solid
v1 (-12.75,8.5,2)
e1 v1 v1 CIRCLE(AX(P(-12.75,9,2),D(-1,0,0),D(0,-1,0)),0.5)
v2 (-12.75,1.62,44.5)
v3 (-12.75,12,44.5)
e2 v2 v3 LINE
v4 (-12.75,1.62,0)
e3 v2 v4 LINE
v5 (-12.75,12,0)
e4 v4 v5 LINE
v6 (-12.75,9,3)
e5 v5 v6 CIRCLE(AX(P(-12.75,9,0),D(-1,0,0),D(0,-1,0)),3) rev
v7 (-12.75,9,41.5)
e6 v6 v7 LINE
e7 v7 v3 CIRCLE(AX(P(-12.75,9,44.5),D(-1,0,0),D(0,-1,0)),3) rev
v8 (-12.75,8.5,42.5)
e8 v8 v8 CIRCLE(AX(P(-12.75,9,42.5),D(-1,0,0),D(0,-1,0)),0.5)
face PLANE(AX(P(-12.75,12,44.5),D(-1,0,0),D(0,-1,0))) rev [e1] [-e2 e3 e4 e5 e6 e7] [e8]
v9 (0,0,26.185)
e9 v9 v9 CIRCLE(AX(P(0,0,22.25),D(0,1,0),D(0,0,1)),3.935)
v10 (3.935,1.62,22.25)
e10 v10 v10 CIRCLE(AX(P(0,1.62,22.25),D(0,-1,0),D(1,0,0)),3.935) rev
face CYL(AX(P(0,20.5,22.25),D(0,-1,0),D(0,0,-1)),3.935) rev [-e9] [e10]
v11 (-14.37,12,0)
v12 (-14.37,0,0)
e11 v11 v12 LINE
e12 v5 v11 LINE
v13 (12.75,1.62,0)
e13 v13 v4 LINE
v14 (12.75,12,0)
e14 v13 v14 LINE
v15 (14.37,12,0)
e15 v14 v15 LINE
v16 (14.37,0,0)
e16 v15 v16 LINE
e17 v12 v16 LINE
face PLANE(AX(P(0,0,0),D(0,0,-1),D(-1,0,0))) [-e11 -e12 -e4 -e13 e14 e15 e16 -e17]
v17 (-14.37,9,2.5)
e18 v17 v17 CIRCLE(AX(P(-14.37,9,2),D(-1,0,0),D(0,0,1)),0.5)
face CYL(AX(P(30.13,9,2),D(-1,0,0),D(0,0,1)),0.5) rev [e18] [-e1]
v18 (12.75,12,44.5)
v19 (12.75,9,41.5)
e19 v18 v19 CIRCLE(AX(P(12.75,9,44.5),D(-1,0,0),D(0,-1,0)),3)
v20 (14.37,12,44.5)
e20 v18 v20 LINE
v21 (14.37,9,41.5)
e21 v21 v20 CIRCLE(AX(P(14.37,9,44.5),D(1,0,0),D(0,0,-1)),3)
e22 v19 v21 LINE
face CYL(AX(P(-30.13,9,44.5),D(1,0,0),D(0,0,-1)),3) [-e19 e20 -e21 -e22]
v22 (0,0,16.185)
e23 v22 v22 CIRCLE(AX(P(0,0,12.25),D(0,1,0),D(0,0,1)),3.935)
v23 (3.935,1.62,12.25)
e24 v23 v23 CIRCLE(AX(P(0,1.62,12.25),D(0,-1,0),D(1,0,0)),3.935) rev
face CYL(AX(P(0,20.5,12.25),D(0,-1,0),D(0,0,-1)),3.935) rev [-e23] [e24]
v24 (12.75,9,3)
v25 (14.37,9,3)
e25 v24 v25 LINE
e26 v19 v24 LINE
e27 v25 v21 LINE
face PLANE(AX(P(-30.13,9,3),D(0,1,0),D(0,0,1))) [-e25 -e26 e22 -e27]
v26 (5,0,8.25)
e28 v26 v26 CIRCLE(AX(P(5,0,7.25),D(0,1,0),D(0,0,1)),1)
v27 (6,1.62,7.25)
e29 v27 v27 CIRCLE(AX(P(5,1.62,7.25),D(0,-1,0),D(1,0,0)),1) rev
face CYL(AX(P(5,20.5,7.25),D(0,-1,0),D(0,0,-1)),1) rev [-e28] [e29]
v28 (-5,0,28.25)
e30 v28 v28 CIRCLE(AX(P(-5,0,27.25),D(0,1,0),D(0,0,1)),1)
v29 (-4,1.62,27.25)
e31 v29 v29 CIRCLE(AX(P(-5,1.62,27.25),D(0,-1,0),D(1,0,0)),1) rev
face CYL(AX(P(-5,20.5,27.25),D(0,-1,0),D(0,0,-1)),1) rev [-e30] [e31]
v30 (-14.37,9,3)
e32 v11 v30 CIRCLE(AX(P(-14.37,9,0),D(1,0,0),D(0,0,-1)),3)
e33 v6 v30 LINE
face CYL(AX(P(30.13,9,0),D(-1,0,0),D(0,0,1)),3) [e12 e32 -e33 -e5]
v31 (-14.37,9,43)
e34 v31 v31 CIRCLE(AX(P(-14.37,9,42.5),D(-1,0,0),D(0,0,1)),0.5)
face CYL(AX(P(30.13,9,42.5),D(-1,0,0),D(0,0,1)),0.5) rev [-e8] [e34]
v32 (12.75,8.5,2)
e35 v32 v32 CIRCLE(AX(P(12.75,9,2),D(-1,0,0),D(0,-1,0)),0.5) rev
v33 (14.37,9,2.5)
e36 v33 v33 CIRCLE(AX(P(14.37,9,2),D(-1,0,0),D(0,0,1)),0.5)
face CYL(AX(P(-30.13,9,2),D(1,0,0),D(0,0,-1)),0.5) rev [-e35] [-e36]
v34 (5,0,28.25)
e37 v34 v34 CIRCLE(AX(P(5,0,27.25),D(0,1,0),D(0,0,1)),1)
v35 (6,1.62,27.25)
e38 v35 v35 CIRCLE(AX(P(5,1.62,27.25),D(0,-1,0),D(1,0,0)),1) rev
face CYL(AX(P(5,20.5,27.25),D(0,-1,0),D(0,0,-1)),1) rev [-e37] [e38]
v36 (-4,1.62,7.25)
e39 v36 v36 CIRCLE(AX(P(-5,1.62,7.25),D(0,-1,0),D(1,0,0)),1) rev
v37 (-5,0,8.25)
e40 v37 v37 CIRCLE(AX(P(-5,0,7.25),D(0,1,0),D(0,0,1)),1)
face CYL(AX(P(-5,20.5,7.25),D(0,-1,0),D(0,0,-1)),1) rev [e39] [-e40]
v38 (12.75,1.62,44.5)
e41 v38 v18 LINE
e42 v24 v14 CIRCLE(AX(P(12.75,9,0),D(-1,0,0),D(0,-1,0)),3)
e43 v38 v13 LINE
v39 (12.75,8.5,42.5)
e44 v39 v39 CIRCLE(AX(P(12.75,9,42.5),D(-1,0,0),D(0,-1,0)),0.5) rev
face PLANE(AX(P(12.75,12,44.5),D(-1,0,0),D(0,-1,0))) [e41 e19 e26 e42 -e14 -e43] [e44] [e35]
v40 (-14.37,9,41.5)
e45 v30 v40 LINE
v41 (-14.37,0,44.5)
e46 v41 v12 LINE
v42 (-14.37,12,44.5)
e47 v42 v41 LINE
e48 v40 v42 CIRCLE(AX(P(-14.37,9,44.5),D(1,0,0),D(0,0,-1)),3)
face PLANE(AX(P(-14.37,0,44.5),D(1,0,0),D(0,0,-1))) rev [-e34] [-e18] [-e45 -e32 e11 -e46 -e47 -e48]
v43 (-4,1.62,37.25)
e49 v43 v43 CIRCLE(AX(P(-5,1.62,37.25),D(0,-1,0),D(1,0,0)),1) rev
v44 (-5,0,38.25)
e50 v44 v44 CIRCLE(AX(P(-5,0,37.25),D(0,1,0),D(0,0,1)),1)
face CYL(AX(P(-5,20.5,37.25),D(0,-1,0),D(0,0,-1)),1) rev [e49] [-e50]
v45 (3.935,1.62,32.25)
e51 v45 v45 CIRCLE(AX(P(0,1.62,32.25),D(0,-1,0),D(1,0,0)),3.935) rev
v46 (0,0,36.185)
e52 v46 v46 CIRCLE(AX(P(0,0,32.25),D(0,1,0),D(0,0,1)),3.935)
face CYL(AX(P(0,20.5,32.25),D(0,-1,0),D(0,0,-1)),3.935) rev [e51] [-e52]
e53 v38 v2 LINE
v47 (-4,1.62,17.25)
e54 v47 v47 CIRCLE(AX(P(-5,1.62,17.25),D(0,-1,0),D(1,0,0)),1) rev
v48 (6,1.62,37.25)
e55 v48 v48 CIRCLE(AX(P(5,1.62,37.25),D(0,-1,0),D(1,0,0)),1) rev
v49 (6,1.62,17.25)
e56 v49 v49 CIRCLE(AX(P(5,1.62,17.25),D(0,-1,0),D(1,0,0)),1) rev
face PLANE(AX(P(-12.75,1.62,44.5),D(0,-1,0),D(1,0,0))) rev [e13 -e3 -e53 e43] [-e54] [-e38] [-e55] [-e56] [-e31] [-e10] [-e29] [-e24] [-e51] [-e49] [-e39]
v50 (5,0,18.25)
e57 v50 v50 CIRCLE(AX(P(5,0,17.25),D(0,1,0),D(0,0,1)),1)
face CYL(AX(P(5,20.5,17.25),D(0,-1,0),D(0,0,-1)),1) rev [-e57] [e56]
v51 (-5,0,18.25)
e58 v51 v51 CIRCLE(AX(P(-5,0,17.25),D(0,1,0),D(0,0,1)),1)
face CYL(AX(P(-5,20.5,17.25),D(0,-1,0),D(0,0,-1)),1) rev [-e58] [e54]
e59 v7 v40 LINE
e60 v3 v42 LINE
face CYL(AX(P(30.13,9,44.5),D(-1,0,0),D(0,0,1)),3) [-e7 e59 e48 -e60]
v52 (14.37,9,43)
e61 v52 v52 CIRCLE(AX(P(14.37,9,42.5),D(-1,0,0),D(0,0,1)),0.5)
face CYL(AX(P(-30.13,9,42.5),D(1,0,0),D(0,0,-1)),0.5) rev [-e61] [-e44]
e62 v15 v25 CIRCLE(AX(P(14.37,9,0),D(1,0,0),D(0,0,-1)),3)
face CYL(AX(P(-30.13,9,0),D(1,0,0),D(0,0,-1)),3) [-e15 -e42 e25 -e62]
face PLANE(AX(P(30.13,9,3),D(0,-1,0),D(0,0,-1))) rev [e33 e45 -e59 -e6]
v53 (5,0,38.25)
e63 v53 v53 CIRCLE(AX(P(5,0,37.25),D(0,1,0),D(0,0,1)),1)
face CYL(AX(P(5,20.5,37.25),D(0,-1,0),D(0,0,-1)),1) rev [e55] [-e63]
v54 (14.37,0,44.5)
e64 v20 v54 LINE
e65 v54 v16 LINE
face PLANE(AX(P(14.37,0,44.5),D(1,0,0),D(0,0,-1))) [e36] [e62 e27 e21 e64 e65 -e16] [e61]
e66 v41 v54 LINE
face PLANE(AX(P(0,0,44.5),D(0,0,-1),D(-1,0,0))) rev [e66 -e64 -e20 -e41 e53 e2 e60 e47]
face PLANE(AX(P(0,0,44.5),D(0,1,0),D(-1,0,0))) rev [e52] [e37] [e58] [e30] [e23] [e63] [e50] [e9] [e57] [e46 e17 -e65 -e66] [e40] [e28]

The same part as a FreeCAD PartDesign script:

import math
import FreeCAD as App
import Part
import Sketcher
Q = App.Units.Quantity

doc = App.newDocument("Part")
body = doc.addObject("PartDesign::Body", "Body")

# Sketch on XY plane
sketch1 = body.newObject("Sketcher::SketchObject", "Sketch")
sketch1.AttachmentSupport = (doc.getObject("XY_Plane"), [""])
sketch1.MapMode = "FlatFace"
sketch1.addGeometry([
    Part.LineSegment(App.Vector(-14.37, 0, 0), App.Vector(0, 0, 0)),  # 0
    Part.LineSegment(App.Vector(0, 0, 0), App.Vector(0, 1.62, 0)),  # 1
    Part.LineSegment(App.Vector(0, 1.62, 0), App.Vector(-12.75, 1.62, 0)),  # 2
    Part.LineSegment(App.Vector(-12.75, 1.62, 0), App.Vector(-12.75, 12, 0)),  # 3
    Part.LineSegment(App.Vector(-12.75, 12, 0), App.Vector(-14.37, 12, 0)),  # 4
    Part.LineSegment(App.Vector(-14.37, 12, 0), App.Vector(-14.37, 0, 0)),  # 5
], False)
sketch1.addConstraint([
    Sketcher.Constraint("Coincident", 0, 2, 1, 1),
    Sketcher.Constraint("Coincident", 1, 2, 2, 1),
    Sketcher.Constraint("Coincident", 2, 2, 3, 1),
    Sketcher.Constraint("Coincident", 3, 2, 4, 1),
    Sketcher.Constraint("Coincident", 4, 2, 5, 1),
    Sketcher.Constraint("Coincident", 5, 2, 0, 1),
    Sketcher.Constraint("Horizontal", 0),
    Sketcher.Constraint("Vertical", 1),
    Sketcher.Constraint("Horizontal", 2),
    Sketcher.Constraint("Vertical", 3),
    Sketcher.Constraint("Horizontal", 4),
    Sketcher.Constraint("Vertical", 5),
    Sketcher.Constraint("Coincident", 0, 2, -1, 1),
    Sketcher.Constraint("Equal", 4, 1),
    Sketcher.Constraint("DistanceY", 5, 2, 5, 1, Q("12 mm")),
    Sketcher.Constraint("DistanceX", 0, 1, 0, 2, Q("14.37 mm")),
    Sketcher.Constraint("DistanceX", 2, 2, 2, 1, Q("12.75 mm")),
])
pad1 = body.newObject("PartDesign::Pad", "Pad")
pad1.Profile = sketch1
pad1.Length = 44.5

# Sketch on YZ plane
sketch2 = body.newObject("Sketcher::SketchObject", "Sketch001")
sketch2.AttachmentSupport = (doc.getObject("YZ_Plane"), [""])
sketch2.MapMode = "FlatFace"
sketch2.AttachmentOffset = App.Placement(App.Vector(0, 0, -14.37), App.Rotation())
sketch2.addGeometry([
    Part.Circle(App.Vector(9, 2, 0), App.Vector(0, 0, 1), 0.5),  # 0
    Part.Circle(App.Vector(9, 42.5, 0), App.Vector(0, 0, 1), 0.5),  # 1
    Part.LineSegment(App.Vector(9, 3, 0), App.Vector(9, 41.5, 0)),  # 2
    Part.ArcOfCircle(Part.Circle(App.Vector(9, 44.5, 0), App.Vector(0, 0, 1), 3), math.radians(-90), math.radians(0)),  # 3
    Part.LineSegment(App.Vector(12, 44.5, 0), App.Vector(14.744823, 44.5, 0)),  # 4
    Part.LineSegment(App.Vector(14.744823, 44.5, 0), App.Vector(14.744823, 0, 0)),  # 5
    Part.LineSegment(App.Vector(14.744823, 0, 0), App.Vector(12, 0, 0)),  # 6
    Part.ArcOfCircle(Part.Circle(App.Vector(9, 0, 0), App.Vector(0, 0, 1), 3), math.radians(0), math.radians(90)),  # 7
], False)
sketch2.addConstraint([
    Sketcher.Constraint("Coincident", 2, 2, 3, 1),
    Sketcher.Constraint("Coincident", 3, 2, 4, 1),
    Sketcher.Constraint("Coincident", 4, 2, 5, 1),
    Sketcher.Constraint("Coincident", 5, 2, 6, 1),
    Sketcher.Constraint("Coincident", 6, 2, 7, 1),
    Sketcher.Constraint("Coincident", 7, 2, 2, 1),
    Sketcher.Constraint("Vertical", 2),
    Sketcher.Constraint("Horizontal", 4),
    Sketcher.Constraint("Vertical", 5),
    Sketcher.Constraint("Horizontal", 6),
    Sketcher.Constraint("Equal", 0, 1),
    Sketcher.Constraint("Equal", 3, 7),
    Sketcher.Constraint("PointOnObject", 7, 3, -1),
    Sketcher.Constraint("PointOnObject", 5, 2, -1),
    Sketcher.Constraint("Vertical", 0, 3, 1, 3),
    Sketcher.Constraint("Vertical", 1, 3, 3, 3),
    Sketcher.Constraint("Vertical", 3, 3, 7, 3),
    Sketcher.Constraint("Vertical", 7, 3, 2, 2),
    Sketcher.Constraint("Diameter", 0, Q("1 mm")),
    Sketcher.Constraint("Radius", 3, Q("3 mm")),
    Sketcher.Constraint("DistanceY", 2, 1, 2, 2, Q("38.5 mm")),
    Sketcher.Constraint("DistanceY", 5, 2, 5, 1, Q("44.5 mm")),
    Sketcher.Constraint("DistanceX", -1, 1, 0, 3, Q("9 mm")),
    Sketcher.Constraint("DistanceY", -1, 1, 0, 3, Q("2 mm")),
    Sketcher.Constraint("DistanceY", 1, 3, 3, 3, Q("2 mm")),
    Sketcher.Constraint("DistanceX", 4, 1, 4, 2, Q("2.744823 mm")),
])
pocket1 = body.newObject("PartDesign::Pocket", "Pocket")
pocket1.Profile = sketch2
pocket1.Length = 44.5
pocket1.Reversed = True
doc.recompute()

mirrored = body.newObject("PartDesign::Mirrored", "Mirrored")
mirrored.Originals = [pad1, pocket1]
mirrored.MirrorPlane = (doc.getObject("YZ_Plane"), [""])
body.Tip = mirrored

# Sketch on XZ plane
sketch3 = body.newObject("Sketcher::SketchObject", "Sketch002")
sketch3.AttachmentSupport = (doc.getObject("XZ_Plane"), [""])
sketch3.MapMode = "FlatFace"
sketch3.addGeometry([
    Part.Circle(App.Vector(0, 12.25, 0), App.Vector(0, 0, 1), 3.935),  # 0
    Part.Circle(App.Vector(-5, 7.25, 0), App.Vector(0, 0, 1), 1),  # 1
    Part.Circle(App.Vector(5, 7.25, 0), App.Vector(0, 0, 1), 1),  # 2
    Part.Circle(App.Vector(5, 17.25, 0), App.Vector(0, 0, 1), 1),  # 3
    Part.Circle(App.Vector(-5, 17.25, 0), App.Vector(0, 0, 1), 1),  # 4
    Part.Circle(App.Vector(0, 22.25, 0), App.Vector(0, 0, 1), 3.935),  # 5
    Part.Circle(App.Vector(-5, 27.25, 0), App.Vector(0, 0, 1), 1),  # 6
    Part.Circle(App.Vector(5, 27.25, 0), App.Vector(0, 0, 1), 1),  # 7
    Part.Circle(App.Vector(0, 32.25, 0), App.Vector(0, 0, 1), 3.935),  # 8
    Part.Circle(App.Vector(-5, 37.25, 0), App.Vector(0, 0, 1), 1),  # 9
    Part.Circle(App.Vector(5, 37.25, 0), App.Vector(0, 0, 1), 1),  # 10
], False)
sketch3.addConstraint([
    Sketcher.Constraint("Equal", 1, 2),
    Sketcher.Constraint("Equal", 2, 3),
    Sketcher.Constraint("Equal", 3, 4),
    Sketcher.Constraint("Equal", 0, 5),
    Sketcher.Constraint("Equal", 4, 6),
    Sketcher.Constraint("Equal", 6, 7),
    Sketcher.Constraint("Equal", 5, 8),
    Sketcher.Constraint("Equal", 7, 9),
    Sketcher.Constraint("Equal", 9, 10),
    Sketcher.Constraint("Symmetric", 1, 3, 2, 3, -2),
    Sketcher.Constraint("Symmetric", 3, 3, 4, 3, -2),
    Sketcher.Constraint("Symmetric", 6, 3, 7, 3, -2),
    Sketcher.Constraint("Symmetric", 9, 3, 10, 3, -2),
    Sketcher.Constraint("PointOnObject", 0, 3, -2),
    Sketcher.Constraint("PointOnObject", 5, 3, -2),
    Sketcher.Constraint("PointOnObject", 8, 3, -2),
    Sketcher.Constraint("Vertical", 2, 3, 3, 3),
    Sketcher.Constraint("Vertical", 4, 3, 6, 3),
    Sketcher.Constraint("Vertical", 6, 3, 9, 3),
    Sketcher.Constraint("Diameter", 1, Q("2 mm")),
    Sketcher.Constraint("Diameter", 0, Q("7.87 mm")),
    Sketcher.Constraint("DistanceX", 1, 3, -1, 1, Q("5 mm")),
    Sketcher.Constraint("DistanceY", 1, 3, 0, 3, Q("5 mm")),
    Sketcher.Constraint("DistanceY", 0, 3, 3, 3, Q("5 mm")),
    Sketcher.Constraint("DistanceY", 3, 3, 5, 3, Q("5 mm")),
    Sketcher.Constraint("DistanceY", 5, 3, 6, 3, Q("5 mm")),
    Sketcher.Constraint("DistanceY", 6, 3, 8, 3, Q("5 mm")),
    Sketcher.Constraint("DistanceY", 8, 3, 9, 3, Q("5 mm")),
    Sketcher.Constraint("DistanceY", -1, 1, 0, 3, Q("12.25 mm")),
])
pocket2 = body.newObject("PartDesign::Pocket", "Pocket001")
pocket2.Profile = sketch3
pocket2.Length = 20.5

doc.recompute()
